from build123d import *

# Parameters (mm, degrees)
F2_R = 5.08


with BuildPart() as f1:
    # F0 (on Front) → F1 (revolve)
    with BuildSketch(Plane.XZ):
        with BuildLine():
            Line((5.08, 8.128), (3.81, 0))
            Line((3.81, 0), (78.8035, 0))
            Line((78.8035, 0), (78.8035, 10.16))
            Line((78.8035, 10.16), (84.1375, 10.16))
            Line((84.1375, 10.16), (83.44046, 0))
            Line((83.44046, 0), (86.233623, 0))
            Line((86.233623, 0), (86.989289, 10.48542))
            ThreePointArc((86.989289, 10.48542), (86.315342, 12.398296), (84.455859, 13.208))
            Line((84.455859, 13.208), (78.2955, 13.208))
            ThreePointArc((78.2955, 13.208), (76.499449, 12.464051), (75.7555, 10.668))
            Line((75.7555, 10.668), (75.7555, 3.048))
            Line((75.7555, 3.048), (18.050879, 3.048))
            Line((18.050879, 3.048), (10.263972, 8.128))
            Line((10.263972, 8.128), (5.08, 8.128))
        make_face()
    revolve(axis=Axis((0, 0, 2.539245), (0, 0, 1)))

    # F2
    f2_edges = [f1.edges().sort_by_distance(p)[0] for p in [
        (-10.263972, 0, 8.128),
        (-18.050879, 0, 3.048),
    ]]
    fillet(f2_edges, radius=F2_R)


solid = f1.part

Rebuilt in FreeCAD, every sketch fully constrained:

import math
import FreeCAD as App
import Part
import Sketcher
from FreeCAD import Vector
Q = App.Units.Quantity


def edges_at(feature, points):
    """Names of the edges that pass closest to the given points."""
    edges = feature.Shape.Edges
    near = lambda p: min(range(len(edges)), key=lambda i: edges[i].distToShape(Part.Vertex(*p))[0])
    return sorted({f"Edge{near(p) + 1}" for p in points})

doc = App.newDocument("Part")
body = doc.addObject("PartDesign::Body", "Body")

sketch1 = body.newObject("Sketcher::SketchObject", "Sketch")
sketch1.AttachmentSupport = (doc.getObject("XZ_Plane"), [""])
sketch1.MapMode = "FlatFace"
sketch1.addGeometry(Part.LineSegment(Vector(5.1, 8.1, 0), Vector(3.8, 0, 0)), False)
sketch1.addGeometry(Part.LineSegment(Vector(3.8, 0, 0), Vector(78.8, 0, 0)), False)
sketch1.addGeometry(Part.LineSegment(Vector(78.8, 0, 0), Vector(78.8, 10.2, 0)), False)
sketch1.addGeometry(Part.LineSegment(Vector(78.8, 10.2, 0), Vector(84.1, 10.2, 0)), False)
sketch1.addGeometry(Part.LineSegment(Vector(84.1, 10.2, 0), Vector(83.4, 0, 0)), False)
sketch1.addGeometry(Part.LineSegment(Vector(83.4, 0, 0), Vector(86.2, 0, 0)), False)
sketch1.addGeometry(Part.LineSegment(Vector(86.2, 0, 0), Vector(87, 10.5, 0)), False)
sketch1.addGeometry(Part.ArcOfCircle(Part.Circle(Vector(84.5, 10.7, 0), Vector(0, 0, 1), 2.5), math.radians(-4), math.radians(90)), False)
sketch1.addGeometry(Part.LineSegment(Vector(84.5, 13.2, 0), Vector(78.3, 13.2, 0)), False)
sketch1.addGeometry(Part.ArcOfCircle(Part.Circle(Vector(78.3, 10.7, 0), Vector(0, 0, 1), 2.5), math.radians(90), math.radians(180)), False)
sketch1.addGeometry(Part.LineSegment(Vector(75.8, 10.7, 0), Vector(75.8, 3, 0)), False)
sketch1.addGeometry(Part.LineSegment(Vector(75.8, 3, 0), Vector(18.1, 3, 0)), False)
sketch1.addGeometry(Part.LineSegment(Vector(18.1, 3, 0), Vector(10.3, 8.1, 0)), False)
sketch1.addGeometry(Part.LineSegment(Vector(10.3, 8.1, 0), Vector(5.1, 8.1, 0)), False)
sketch1.addConstraint(Sketcher.Constraint("Coincident", 0, 2, 1, 1))
sketch1.addConstraint(Sketcher.Constraint("Coincident", 1, 2, 2, 1))
sketch1.addConstraint(Sketcher.Constraint("Coincident", 2, 2, 3, 1))
sketch1.addConstraint(Sketcher.Constraint("Coincident", 3, 2, 4, 1))
sketch1.addConstraint(Sketcher.Constraint("Coincident", 4, 2, 5, 1))
sketch1.addConstraint(Sketcher.Constraint("Coincident", 5, 2, 6, 1))
sketch1.addConstraint(Sketcher.Constraint("Tangent", 6, 2, 7, 1))
sketch1.addConstraint(Sketcher.Constraint("Tangent", 7, 2, 8, 1))
sketch1.addConstraint(Sketcher.Constraint("Tangent", 8, 2, 9, 1))
sketch1.addConstraint(Sketcher.Constraint("Tangent", 9, 2, 10, 1))
sketch1.addConstraint(Sketcher.Constraint("Coincident", 10, 2, 11, 1))
sketch1.addConstraint(Sketcher.Constraint("Coincident", 11, 2, 12, 1))
sketch1.addConstraint(Sketcher.Constraint("Coincident", 12, 2, 13, 1))
sketch1.addConstraint(Sketcher.Constraint("Coincident", 13, 2, 0, 1))
sketch1.addConstraint(Sketcher.Constraint("Horizontal", 1))
sketch1.addConstraint(Sketcher.Constraint("Vertical", 2))
sketch1.addConstraint(Sketcher.Constraint("Horizontal", 3))
sketch1.addConstraint(Sketcher.Constraint("Horizontal", 5))
sketch1.addConstraint(Sketcher.Constraint("Horizontal", 8))
sketch1.addConstraint(Sketcher.Constraint("Vertical", 10))
sketch1.addConstraint(Sketcher.Constraint("Horizontal", 11))
sketch1.addConstraint(Sketcher.Constraint("Horizontal", 13))
sketch1.addConstraint(Sketcher.Constraint("Equal", 7, 9))
sketch1.addConstraint(Sketcher.Constraint("PointOnObject", 0, 2, -1))
sketch1.addConstraint(Sketcher.Constraint("PointOnObject", 4, 2, -1))
sketch1.addConstraint(Sketcher.Constraint("Radius", 7, Q("0.1 in")))
sketch1.addConstraint(Sketcher.Constraint("DistanceY", 2, 1, 2, 2, Q("0.4 in")))
sketch1.addConstraint(Sketcher.Constraint("DistanceY", 10, 2, 10, 1, Q("0.3 in")))
sketch1.addConstraint(Sketcher.Constraint("DistanceX", 3, 1, 3, 2, Q("0.21 in")))
sketch1.addConstraint(Sketcher.Constraint("DistanceX", -1, 1, 13, 2, Q("0.2 in")))
sketch1.addConstraint(Sketcher.Constraint("DistanceY", 11, 2, 12, 2, Q("0.2 in")))
sketch1.addConstraint(Sketcher.Constraint("DistanceY", -1, 1, 7, 3, Q("0.42 in")))
sketch1.addConstraint(Sketcher.Constraint("DistanceX", -1, 1, 0, 2, Q("0.15 in")))
sketch1.addConstraint(Sketcher.Constraint("DistanceX", 9, 3, 1, 2, Q("0.02 in")))
sketch1.addConstraint(Sketcher.Constraint("DistanceX", 1, 1, 1, 2, Q("2.9525 in")))
sketch1.addConstraint(Sketcher.Constraint("DistanceX", 8, 2, 8, 1, 6.160359))
sketch1.addConstraint(Sketcher.Constraint("DistanceX", 11, 2, 11, 1, 57.704621))
sketch1.addConstraint(Sketcher.Constraint("DistanceX", 4, 2, 7, 3, 1.015399))
sketch1.addConstraint(Sketcher.Constraint("DistanceX", 5, 1, 5, 2, 2.793163))
sketch1.addConstraint(Sketcher.Constraint("DistanceX", 13, 2, 13, 1, 5.183972))
revolution = body.newObject("PartDesign::Revolution", "Revolution")
revolution.Profile = sketch1
revolution.ReferenceAxis = (sketch1, ["V_Axis"])
revolution.Angle = 360
doc.recompute()

fillet = body.newObject("PartDesign::Fillet", "Fillet")
fillet.Base = (revolution, edges_at(revolution, [(-10.264, 0, 8.128), (-18.051, 0, 3.048)]))
fillet.Radius = Q("0.2 in")

doc.recompute()
